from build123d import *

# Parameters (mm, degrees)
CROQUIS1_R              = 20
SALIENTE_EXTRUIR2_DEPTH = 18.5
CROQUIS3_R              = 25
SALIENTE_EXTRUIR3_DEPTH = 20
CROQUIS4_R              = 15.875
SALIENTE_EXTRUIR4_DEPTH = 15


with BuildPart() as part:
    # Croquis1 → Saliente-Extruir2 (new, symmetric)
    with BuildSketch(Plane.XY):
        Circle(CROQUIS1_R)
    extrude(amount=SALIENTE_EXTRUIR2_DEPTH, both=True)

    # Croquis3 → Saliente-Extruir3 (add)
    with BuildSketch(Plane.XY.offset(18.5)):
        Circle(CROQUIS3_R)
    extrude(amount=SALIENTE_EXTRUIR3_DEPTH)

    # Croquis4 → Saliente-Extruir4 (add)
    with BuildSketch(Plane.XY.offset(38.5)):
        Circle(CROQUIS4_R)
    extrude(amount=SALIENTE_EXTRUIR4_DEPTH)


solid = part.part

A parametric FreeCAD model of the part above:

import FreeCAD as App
import Part
import Sketcher

V = App.Vector
Q = App.Units.Quantity

doc = App.newDocument("Part")
body = doc.addObject("PartDesign::Body", "Body")

sketch1 = body.newObject("Sketcher::SketchObject", "Sketch")
sketch1.AttachmentSupport = (doc.getObject("XY_Plane"), [""])
sketch1.MapMode = "FlatFace"
sketch1.addGeometry(Part.Circle(V(0, 0, 0), V(0, 0, 1), 20), False)
sketch1.addConstraint([
    Sketcher.Constraint("Coincident", 0, 3, -1, 1),
    Sketcher.Constraint("Diameter", 0, Q("40 mm")),
])
pad1 = body.newObject("PartDesign::Pad", "Pad")
pad1.Profile = sketch1
pad1.Length = 37
pad1.Midplane = True

sketch2 = body.newObject("Sketcher::SketchObject", "Sketch001")
sketch2.AttachmentSupport = (doc.getObject("XY_Plane"), [""])
sketch2.MapMode = "FlatFace"
sketch2.AttachmentOffset = App.Placement(V(0, 0, 18.5), App.Rotation())
sketch2.addGeometry(Part.Circle(V(0, 0, 0), V(0, 0, 1), 25), False)
sketch2.addConstraint([
    Sketcher.Constraint("Coincident", 0, 3, -1, 1),
    Sketcher.Constraint("Diameter", 0, Q("50 mm")),
])
pad2 = body.newObject("PartDesign::Pad", "Pad001")
pad2.Profile = sketch2
pad2.Length = 20

sketch3 = body.newObject("Sketcher::SketchObject", "Sketch002")
sketch3.AttachmentSupport = (doc.getObject("XY_Plane"), [""])
sketch3.MapMode = "FlatFace"
sketch3.AttachmentOffset = App.Placement(V(0, 0, 38.5), App.Rotation())
sketch3.addGeometry(Part.Circle(V(0, 0, 0), V(0, 0, 1), 16), False)
sketch3.addConstraint([
    Sketcher.Constraint("Coincident", 0, 3, -1, 1),
    Sketcher.Constraint("Diameter", 0, Q("31.75 mm")),
])
pad3 = body.newObject("PartDesign::Pad", "Pad002")
pad3.Profile = sketch3
pad3.Length = 15

doc.recompute()
